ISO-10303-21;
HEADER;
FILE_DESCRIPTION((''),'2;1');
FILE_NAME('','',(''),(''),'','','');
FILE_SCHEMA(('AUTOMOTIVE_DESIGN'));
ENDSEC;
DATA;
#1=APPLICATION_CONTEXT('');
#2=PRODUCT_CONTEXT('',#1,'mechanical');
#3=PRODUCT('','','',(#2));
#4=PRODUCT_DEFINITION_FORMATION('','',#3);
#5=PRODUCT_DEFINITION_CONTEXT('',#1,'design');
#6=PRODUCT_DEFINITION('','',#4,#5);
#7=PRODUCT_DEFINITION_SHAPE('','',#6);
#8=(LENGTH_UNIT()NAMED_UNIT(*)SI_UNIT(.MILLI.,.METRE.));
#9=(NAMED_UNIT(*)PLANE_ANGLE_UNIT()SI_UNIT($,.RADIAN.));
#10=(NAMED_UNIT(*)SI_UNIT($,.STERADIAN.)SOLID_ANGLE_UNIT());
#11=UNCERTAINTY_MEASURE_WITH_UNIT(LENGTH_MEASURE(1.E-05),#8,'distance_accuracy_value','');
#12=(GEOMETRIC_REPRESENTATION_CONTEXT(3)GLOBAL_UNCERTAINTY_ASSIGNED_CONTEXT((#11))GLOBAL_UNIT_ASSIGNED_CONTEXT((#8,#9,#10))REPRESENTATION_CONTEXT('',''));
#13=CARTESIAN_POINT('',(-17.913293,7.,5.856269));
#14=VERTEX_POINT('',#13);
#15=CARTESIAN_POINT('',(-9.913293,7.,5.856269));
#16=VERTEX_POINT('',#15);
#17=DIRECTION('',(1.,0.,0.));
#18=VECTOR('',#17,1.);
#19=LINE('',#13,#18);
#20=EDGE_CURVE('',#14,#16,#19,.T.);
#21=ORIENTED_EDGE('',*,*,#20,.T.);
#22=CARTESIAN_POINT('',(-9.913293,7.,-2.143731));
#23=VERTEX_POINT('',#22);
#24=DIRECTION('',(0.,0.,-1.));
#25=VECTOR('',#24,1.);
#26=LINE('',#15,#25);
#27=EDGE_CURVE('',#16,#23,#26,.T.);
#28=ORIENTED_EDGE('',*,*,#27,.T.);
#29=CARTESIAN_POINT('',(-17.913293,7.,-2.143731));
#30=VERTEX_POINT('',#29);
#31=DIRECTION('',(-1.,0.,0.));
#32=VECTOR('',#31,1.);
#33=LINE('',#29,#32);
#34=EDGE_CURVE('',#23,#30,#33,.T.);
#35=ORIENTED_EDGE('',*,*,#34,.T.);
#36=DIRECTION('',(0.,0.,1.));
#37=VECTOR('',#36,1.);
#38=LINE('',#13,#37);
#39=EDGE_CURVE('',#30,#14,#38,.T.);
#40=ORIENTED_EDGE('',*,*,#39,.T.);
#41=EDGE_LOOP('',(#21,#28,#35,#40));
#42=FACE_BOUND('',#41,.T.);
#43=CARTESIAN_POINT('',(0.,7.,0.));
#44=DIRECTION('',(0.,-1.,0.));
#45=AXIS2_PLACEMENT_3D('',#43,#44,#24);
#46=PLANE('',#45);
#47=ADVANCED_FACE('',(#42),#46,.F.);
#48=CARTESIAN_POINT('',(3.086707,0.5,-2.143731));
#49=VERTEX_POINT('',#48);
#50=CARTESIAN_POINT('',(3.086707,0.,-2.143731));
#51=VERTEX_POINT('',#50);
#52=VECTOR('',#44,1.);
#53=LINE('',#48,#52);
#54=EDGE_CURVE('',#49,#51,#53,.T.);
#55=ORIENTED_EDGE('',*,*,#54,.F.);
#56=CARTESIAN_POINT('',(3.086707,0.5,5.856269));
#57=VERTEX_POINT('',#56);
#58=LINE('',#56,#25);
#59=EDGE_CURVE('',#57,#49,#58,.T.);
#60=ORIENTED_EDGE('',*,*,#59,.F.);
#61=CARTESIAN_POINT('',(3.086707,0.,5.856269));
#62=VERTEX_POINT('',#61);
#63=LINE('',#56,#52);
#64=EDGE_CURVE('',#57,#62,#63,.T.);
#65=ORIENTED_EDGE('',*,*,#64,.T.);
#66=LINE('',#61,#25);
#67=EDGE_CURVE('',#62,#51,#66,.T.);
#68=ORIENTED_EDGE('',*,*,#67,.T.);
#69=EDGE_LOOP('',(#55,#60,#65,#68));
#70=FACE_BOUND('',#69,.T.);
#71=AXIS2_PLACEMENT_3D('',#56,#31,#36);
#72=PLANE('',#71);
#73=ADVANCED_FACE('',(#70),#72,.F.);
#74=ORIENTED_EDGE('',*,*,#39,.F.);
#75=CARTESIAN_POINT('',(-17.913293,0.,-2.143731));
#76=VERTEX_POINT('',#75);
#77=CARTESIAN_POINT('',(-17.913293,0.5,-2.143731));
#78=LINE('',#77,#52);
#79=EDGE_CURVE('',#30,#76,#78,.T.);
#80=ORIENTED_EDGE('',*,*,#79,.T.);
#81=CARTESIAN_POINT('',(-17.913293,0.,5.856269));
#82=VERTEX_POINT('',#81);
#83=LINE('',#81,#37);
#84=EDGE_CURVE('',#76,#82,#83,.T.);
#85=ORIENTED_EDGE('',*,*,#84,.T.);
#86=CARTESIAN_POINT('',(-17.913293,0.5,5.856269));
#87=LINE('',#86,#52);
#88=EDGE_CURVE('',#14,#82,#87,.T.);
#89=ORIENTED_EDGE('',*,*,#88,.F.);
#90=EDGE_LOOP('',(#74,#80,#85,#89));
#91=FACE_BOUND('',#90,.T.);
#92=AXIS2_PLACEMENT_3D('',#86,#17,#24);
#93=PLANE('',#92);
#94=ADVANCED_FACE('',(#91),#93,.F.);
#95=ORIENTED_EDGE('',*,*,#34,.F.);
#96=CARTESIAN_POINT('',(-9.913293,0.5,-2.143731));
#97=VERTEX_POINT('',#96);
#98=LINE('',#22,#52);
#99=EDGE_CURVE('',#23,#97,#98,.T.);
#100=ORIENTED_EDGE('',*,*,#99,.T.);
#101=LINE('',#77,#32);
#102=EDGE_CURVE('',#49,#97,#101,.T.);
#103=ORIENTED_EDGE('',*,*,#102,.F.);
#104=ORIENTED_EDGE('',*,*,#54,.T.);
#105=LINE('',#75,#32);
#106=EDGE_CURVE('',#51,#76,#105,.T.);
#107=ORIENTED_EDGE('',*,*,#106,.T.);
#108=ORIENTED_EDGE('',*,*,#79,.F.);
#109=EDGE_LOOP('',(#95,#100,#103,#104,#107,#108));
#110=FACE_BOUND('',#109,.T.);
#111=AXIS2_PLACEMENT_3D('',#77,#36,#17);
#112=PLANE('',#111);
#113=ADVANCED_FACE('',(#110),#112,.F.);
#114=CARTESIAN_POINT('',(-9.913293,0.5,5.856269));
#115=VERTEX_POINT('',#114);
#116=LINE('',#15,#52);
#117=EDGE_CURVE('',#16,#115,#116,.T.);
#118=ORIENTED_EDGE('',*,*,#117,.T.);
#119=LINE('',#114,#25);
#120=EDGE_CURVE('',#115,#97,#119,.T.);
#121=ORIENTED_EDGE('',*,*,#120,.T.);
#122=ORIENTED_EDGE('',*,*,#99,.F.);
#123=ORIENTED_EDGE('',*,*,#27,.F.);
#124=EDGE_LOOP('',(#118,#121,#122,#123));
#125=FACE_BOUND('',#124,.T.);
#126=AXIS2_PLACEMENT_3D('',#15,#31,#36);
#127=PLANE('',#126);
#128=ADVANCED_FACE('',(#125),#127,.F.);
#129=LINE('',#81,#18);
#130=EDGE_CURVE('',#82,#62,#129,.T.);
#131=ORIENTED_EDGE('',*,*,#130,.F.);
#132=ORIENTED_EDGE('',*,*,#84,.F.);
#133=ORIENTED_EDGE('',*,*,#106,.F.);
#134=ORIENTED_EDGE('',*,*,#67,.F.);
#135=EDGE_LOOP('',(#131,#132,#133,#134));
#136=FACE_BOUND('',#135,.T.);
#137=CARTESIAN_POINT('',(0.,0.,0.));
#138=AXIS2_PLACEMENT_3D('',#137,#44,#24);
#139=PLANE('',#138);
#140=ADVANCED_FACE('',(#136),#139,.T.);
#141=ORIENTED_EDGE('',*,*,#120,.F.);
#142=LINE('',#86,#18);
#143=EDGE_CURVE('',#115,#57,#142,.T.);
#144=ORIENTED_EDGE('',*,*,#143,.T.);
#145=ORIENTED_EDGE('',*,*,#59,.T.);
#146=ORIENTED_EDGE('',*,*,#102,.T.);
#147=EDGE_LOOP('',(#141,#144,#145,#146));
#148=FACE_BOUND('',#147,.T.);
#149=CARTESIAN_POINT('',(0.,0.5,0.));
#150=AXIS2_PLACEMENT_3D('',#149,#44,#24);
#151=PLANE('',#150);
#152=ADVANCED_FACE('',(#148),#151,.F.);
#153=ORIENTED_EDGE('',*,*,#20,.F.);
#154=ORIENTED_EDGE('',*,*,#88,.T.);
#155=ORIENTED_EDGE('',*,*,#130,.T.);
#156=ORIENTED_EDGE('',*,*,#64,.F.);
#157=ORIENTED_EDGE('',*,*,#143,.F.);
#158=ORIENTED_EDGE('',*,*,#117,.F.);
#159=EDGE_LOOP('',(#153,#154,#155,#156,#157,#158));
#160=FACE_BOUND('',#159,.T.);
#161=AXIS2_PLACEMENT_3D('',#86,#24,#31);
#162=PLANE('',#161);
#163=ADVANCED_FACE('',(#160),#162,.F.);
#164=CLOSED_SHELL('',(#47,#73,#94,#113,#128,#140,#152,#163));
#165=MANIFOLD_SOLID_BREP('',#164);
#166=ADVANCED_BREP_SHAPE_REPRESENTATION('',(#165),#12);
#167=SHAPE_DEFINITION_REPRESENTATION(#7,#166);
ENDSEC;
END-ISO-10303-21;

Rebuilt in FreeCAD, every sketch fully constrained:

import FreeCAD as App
import Part
import Sketcher
Q = App.Units.Quantity

doc = App.newDocument("Part")
body = doc.addObject("PartDesign::Body", "Body")

sketch1 = body.newObject("Sketcher::SketchObject", "Sketch")
sketch1.AttachmentSupport = (doc.getObject("XZ_Plane"), [""])
sketch1.MapMode = "FlatFace"
sketch1.addGeometry(Part.LineSegment(App.Vector(-17.913293, -2.143731, 0), App.Vector(-17.913293, 5.856269, 0)), False)
sketch1.addGeometry(Part.LineSegment(App.Vector(-17.913293, 5.856269, 0), App.Vector(3.086707, 5.856269, 0)), False)
sketch1.addGeometry(Part.LineSegment(App.Vector(3.086707, 5.856269, 0), App.Vector(3.086707, -2.143731, 0)), False)
sketch1.addGeometry(Part.LineSegment(App.Vector(3.086707, -2.143731, 0), App.Vector(-17.913293, -2.143731, 0)), False)
sketch1.addConstraint(Sketcher.Constraint("Coincident", 0, 2, 1, 1))
sketch1.addConstraint(Sketcher.Constraint("Coincident", 1, 2, 2, 1))
sketch1.addConstraint(Sketcher.Constraint("Coincident", 2, 2, 3, 1))
sketch1.addConstraint(Sketcher.Constraint("Coincident", 3, 2, 0, 1))
sketch1.addConstraint(Sketcher.Constraint("Vertical", 0))
sketch1.addConstraint(Sketcher.Constraint("Horizontal", 1))
sketch1.addConstraint(Sketcher.Constraint("Vertical", 2))
sketch1.addConstraint(Sketcher.Constraint("Horizontal", 3))
sketch1.addConstraint(Sketcher.Constraint("DistanceX", 1, 1, 1, 2, Q("21 mm")))
sketch1.addConstraint(Sketcher.Constraint("DistanceY", 0, 1, 0, 2, Q("8 mm")))
sketch1.addConstraint(Sketcher.Constraint("DistanceY", -1, 1, 0, 2, Q("5.856269 mm")))
sketch1.addConstraint(Sketcher.Constraint("DistanceX", 0, 2, -1, 1, Q("17.913293 mm")))
pad1 = body.newObject("PartDesign::Pad", "Pad")
pad1.Profile = sketch1
pad1.Length = 0.5
pad1.Reversed = True

sketch2 = body.newObject("Sketcher::SketchObject", "Sketch001")
sketch2.AttachmentSupport = (doc.getObject("XZ_Plane"), [""])
sketch2.MapMode = "FlatFace"
sketch2.AttachmentOffset = App.Placement(App.Vector(0, 0, -0.5), App.Rotation())
sketch2.addGeometry(Part.LineSegment(App.Vector(-17.913293, -2.143731, 0), App.Vector(-17.913293, 5.856269, 0)), False)
sketch2.addGeometry(Part.LineSegment(App.Vector(-17.913293, 5.856269, 0), App.Vector(-9.913293, 5.856269, 0)), False)
sketch2.addGeometry(Part.LineSegment(App.Vector(-9.913293, 5.856269, 0), App.Vector(-9.913293, -2.143731, 0)), False)
sketch2.addGeometry(Part.LineSegment(App.Vector(-9.913293, -2.143731, 0), App.Vector(-17.913293, -2.143731, 0)), False)
sketch2.addConstraint(Sketcher.Constraint("Coincident", 0, 2, 1, 1))
sketch2.addConstraint(Sketcher.Constraint("Coincident", 1, 2, 2, 1))
sketch2.addConstraint(Sketcher.Constraint("Coincident", 2, 2, 3, 1))
sketch2.addConstraint(Sketcher.Constraint("Coincident", 3, 2, 0, 1))
sketch2.addConstraint(Sketcher.Constraint("Vertical", 0))
sketch2.addConstraint(Sketcher.Constraint("Horizontal", 1))
sketch2.addConstraint(Sketcher.Constraint("Vertical", 2))
sketch2.addConstraint(Sketcher.Constraint("Horizontal", 3))
sketch2.addConstraint(Sketcher.Constraint("Equal", 3, 0))
sketch2.addConstraint(Sketcher.Constraint("DistanceX", 1, 1, 1, 2, Q("8 mm")))
sketch2.addConstraint(Sketcher.Constraint("DistanceY", -1, 1, 0, 2, Q("5.856269 mm")))
sketch2.addConstraint(Sketcher.Constraint("DistanceX", 0, 2, -1, 1, Q("17.913293 mm")))
pad2 = body.newObject("PartDesign::Pad", "Pad001")
pad2.Profile = sketch2
pad2.Length = 6.5
pad2.Reversed = True

doc.recompute()
